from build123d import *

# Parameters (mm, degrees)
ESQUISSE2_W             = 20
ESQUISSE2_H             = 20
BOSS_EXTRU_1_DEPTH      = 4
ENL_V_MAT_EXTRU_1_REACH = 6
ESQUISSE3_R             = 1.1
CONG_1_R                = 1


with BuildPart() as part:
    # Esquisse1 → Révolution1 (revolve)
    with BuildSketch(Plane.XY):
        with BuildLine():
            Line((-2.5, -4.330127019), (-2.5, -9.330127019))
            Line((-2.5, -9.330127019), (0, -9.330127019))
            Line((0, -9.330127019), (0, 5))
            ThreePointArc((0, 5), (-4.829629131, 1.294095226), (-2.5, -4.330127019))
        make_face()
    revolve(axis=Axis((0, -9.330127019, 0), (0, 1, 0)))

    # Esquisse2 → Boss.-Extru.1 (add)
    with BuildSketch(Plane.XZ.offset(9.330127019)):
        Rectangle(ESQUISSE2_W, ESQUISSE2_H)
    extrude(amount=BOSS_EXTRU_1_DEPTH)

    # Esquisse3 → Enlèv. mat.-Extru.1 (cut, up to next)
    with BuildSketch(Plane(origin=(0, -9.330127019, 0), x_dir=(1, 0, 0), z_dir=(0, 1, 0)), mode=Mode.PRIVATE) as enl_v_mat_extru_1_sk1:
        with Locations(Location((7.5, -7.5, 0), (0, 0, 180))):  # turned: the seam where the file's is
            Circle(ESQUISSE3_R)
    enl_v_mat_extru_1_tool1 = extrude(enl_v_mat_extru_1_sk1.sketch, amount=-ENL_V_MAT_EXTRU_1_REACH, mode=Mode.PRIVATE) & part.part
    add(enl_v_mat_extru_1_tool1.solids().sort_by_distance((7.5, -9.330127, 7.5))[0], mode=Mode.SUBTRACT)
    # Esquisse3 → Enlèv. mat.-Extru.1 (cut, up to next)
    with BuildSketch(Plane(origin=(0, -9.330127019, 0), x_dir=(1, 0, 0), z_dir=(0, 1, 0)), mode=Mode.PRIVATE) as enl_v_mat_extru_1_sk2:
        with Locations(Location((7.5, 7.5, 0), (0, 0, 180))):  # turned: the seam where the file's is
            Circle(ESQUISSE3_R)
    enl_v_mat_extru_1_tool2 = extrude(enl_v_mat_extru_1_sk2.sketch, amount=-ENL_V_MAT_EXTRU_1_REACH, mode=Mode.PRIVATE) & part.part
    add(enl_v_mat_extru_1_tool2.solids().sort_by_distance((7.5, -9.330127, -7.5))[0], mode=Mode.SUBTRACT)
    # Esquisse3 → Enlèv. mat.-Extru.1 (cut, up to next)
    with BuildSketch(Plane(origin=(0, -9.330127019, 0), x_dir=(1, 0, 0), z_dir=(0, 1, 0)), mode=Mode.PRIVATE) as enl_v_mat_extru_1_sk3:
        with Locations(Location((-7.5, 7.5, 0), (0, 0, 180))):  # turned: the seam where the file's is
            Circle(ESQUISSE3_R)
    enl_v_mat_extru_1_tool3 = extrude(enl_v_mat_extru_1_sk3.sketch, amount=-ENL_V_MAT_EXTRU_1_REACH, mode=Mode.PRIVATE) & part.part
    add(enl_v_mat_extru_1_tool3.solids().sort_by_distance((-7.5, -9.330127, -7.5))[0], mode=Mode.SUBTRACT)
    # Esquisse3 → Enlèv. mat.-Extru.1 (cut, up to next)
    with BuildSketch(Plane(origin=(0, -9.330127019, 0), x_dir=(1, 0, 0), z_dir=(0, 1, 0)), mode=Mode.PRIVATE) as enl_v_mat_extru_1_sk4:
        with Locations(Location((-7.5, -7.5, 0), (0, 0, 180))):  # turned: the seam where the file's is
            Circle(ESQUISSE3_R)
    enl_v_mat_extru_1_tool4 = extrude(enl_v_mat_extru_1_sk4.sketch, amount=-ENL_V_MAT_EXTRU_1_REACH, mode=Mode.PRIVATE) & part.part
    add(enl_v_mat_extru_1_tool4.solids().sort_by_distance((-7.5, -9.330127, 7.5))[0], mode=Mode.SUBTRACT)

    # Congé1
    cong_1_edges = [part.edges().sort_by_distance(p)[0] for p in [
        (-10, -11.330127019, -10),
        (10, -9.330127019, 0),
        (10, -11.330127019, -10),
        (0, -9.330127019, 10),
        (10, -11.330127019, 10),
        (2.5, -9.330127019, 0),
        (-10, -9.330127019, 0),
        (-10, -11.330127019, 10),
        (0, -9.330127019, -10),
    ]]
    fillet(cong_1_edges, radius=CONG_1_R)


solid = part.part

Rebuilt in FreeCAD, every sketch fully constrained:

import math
import FreeCAD as App
import Part
import Sketcher
Q = App.Units.Quantity


def edges_at(feature, points):
    """Names of the edges that pass closest to the given points."""
    edges = feature.Shape.Edges
    near = lambda p: min(range(len(edges)), key=lambda i: edges[i].distToShape(Part.Vertex(*p))[0])
    return sorted({f"Edge{near(p) + 1}" for p in points})

doc = App.newDocument("Part")
body = doc.addObject("PartDesign::Body", "Body")

# Sketch on XY plane
sketch1 = body.newObject("Sketcher::SketchObject", "Sketch")
sketch1.AttachmentSupport = (doc.getObject("XY_Plane"), [""])
sketch1.MapMode = "FlatFace"
sketch1.addGeometry([
    Part.LineSegment(App.Vector(-2.5, -4.3, 0), App.Vector(-2.5, -9.3, 0)),
    Part.LineSegment(App.Vector(-2.5, -9.3, 0), App.Vector(0, -9.3, 0)),
    Part.LineSegment(App.Vector(0, -9.3, 0), App.Vector(0, 5, 0)),
    Part.ArcOfCircle(Part.Circle(App.Vector(0, 0, 0), App.Vector(0, 0, 1), 5), math.radians(90), math.radians(240)),
], False)
sketch1.addConstraint([
    Sketcher.Constraint("Coincident", 0, 2, 1, 1),
    Sketcher.Constraint("Coincident", 1, 2, 2, 1),
    Sketcher.Constraint("Coincident", 2, 2, 3, 1),
    Sketcher.Constraint("Coincident", 3, 2, 0, 1),
    Sketcher.Constraint("Vertical", 0),
    Sketcher.Constraint("Horizontal", 1),
    Sketcher.Constraint("Vertical", 2),
    Sketcher.Constraint("Coincident", 3, 3, -1, 1),
    Sketcher.Constraint("PointOnObject", 1, 2, -2),
    Sketcher.Constraint("Radius", 3, Q("5 mm")),
    Sketcher.Constraint("DistanceY", 0, 2, 0, 1, Q("5 mm")),
    Sketcher.Constraint("DistanceX", 1, 1, 1, 2, Q("2.5 mm")),
])
revolution = body.newObject("PartDesign::Revolution", "Revolution")
revolution.Profile = sketch1
revolution.ReferenceAxis = (sketch1, ["V_Axis"])
revolution.Angle = 360

# Sketch on XZ plane
sketch2 = body.newObject("Sketcher::SketchObject", "Sketch001")
sketch2.AttachmentSupport = (doc.getObject("XZ_Plane"), [""])
sketch2.MapMode = "FlatFace"
sketch2.AttachmentOffset = App.Placement(App.Vector(0, 0, 9.330127), App.Rotation())
sketch2.addGeometry([
    Part.LineSegment(App.Vector(-10, 10, 0), App.Vector(-10, -10, 0)),
    Part.LineSegment(App.Vector(-10, -10, 0), App.Vector(10, -10, 0)),
    Part.LineSegment(App.Vector(10, -10, 0), App.Vector(10, 10, 0)),
    Part.LineSegment(App.Vector(10, 10, 0), App.Vector(-10, 10, 0)),
], False)
sketch2.addConstraint([
    Sketcher.Constraint("Coincident", 0, 2, 1, 1),
    Sketcher.Constraint("Coincident", 1, 2, 2, 1),
    Sketcher.Constraint("Coincident", 2, 2, 3, 1),
    Sketcher.Constraint("Coincident", 3, 2, 0, 1),
    Sketcher.Constraint("Vertical", 0),
    Sketcher.Constraint("Horizontal", 1),
    Sketcher.Constraint("Vertical", 2),
    Sketcher.Constraint("Horizontal", 3),
    Sketcher.Constraint("Symmetric", 0, 2, 2, 2, -1, 1),
    Sketcher.Constraint("Equal", 3, 0),
    Sketcher.Constraint("DistanceX", 1, 1, 1, 2, Q("20 mm")),
])
pad1 = body.newObject("PartDesign::Pad", "Pad")
pad1.Profile = sketch2
pad1.Length = 4

# Sketch on XZ plane
sketch3 = body.newObject("Sketcher::SketchObject", "Sketch002")
sketch3.AttachmentSupport = (doc.getObject("XZ_Plane"), [""])
sketch3.MapMode = "FlatFace"
sketch3.AttachmentOffset = App.Placement(App.Vector(0, 0, 9.330127), App.Rotation())
sketch3.addGeometry(Part.Circle(App.Vector(7.5, 7.5, 0), App.Vector(0, 0, 1), 1.1), False)
sketch3.addConstraint([
    Sketcher.Constraint("Diameter", 0, Q("2.2 mm")),
    Sketcher.Constraint("DistanceX", -1, 1, 0, 3, Q("7.5 mm")),
    Sketcher.Constraint("DistanceY", -1, 1, 0, 3, Q("7.5 mm")),
])
pocket1 = body.newObject("PartDesign::Pocket", "Pocket")
pocket1.Profile = sketch3
pocket1.Type = "UpToFirst"
pocket1.Reversed = True

# Sketch on XZ plane
sketch4 = body.newObject("Sketcher::SketchObject", "Sketch003")
sketch4.AttachmentSupport = (doc.getObject("XZ_Plane"), [""])
sketch4.MapMode = "FlatFace"
sketch4.AttachmentOffset = App.Placement(App.Vector(0, 0, 9.330127), App.Rotation())
sketch4.addGeometry(Part.Circle(App.Vector(7.5, -7.5, 0), App.Vector(0, 0, 1), 1.1), False)
sketch4.addConstraint([
    Sketcher.Constraint("Diameter", 0, Q("2.2 mm")),
    Sketcher.Constraint("DistanceX", -1, 1, 0, 3, Q("7.5 mm")),
    Sketcher.Constraint("DistanceY", 0, 3, -1, 1, Q("7.5 mm")),
])
pocket2 = body.newObject("PartDesign::Pocket", "Pocket001")
pocket2.Profile = sketch4
pocket2.Type = "UpToFirst"
pocket2.Reversed = True

# Sketch on XZ plane
sketch5 = body.newObject("Sketcher::SketchObject", "Sketch004")
sketch5.AttachmentSupport = (doc.getObject("XZ_Plane"), [""])
sketch5.MapMode = "FlatFace"
sketch5.AttachmentOffset = App.Placement(App.Vector(0, 0, 9.330127), App.Rotation())
sketch5.addGeometry(Part.Circle(App.Vector(-7.5, -7.5, 0), App.Vector(0, 0, 1), 1.1), False)
sketch5.addConstraint([
    Sketcher.Constraint("Diameter", 0, Q("2.2 mm")),
    Sketcher.Constraint("DistanceX", 0, 3, -1, 1, Q("7.5 mm")),
    Sketcher.Constraint("DistanceY", 0, 3, -1, 1, Q("7.5 mm")),
])
pocket3 = body.newObject("PartDesign::Pocket", "Pocket002")
pocket3.Profile = sketch5
pocket3.Type = "UpToFirst"
pocket3.Reversed = True

# Sketch on XZ plane
sketch6 = body.newObject("Sketcher::SketchObject", "Sketch005")
sketch6.AttachmentSupport = (doc.getObject("XZ_Plane"), [""])
sketch6.MapMode = "FlatFace"
sketch6.AttachmentOffset = App.Placement(App.Vector(0, 0, 9.330127), App.Rotation())
sketch6.addGeometry(Part.Circle(App.Vector(-7.5, 7.5, 0), App.Vector(0, 0, 1), 1.1), False)
sketch6.addConstraint([
    Sketcher.Constraint("Diameter", 0, Q("2.2 mm")),
    Sketcher.Constraint("DistanceX", 0, 3, -1, 1, Q("7.5 mm")),
    Sketcher.Constraint("DistanceY", -1, 1, 0, 3, Q("7.5 mm")),
])
pocket4 = body.newObject("PartDesign::Pocket", "Pocket003")
pocket4.Profile = sketch6
pocket4.Type = "UpToFirst"
pocket4.Reversed = True
doc.recompute()

fillet = body.newObject("PartDesign::Fillet", "Fillet")
fillet.Base = (pocket4, edges_at(pocket4, [
    (-10, -11.33, -10),
    (10, -9.33, 0),
    (10, -11.33, -10),
    (0, -9.33, 10),
    (10, -11.33, 10),
    (2.5, -9.33, 0),
    (-10, -9.33, 0),
    (-10, -11.33, 10),
    (0, -9.33, -10),
]))
fillet.Radius = 1

doc.recompute()
